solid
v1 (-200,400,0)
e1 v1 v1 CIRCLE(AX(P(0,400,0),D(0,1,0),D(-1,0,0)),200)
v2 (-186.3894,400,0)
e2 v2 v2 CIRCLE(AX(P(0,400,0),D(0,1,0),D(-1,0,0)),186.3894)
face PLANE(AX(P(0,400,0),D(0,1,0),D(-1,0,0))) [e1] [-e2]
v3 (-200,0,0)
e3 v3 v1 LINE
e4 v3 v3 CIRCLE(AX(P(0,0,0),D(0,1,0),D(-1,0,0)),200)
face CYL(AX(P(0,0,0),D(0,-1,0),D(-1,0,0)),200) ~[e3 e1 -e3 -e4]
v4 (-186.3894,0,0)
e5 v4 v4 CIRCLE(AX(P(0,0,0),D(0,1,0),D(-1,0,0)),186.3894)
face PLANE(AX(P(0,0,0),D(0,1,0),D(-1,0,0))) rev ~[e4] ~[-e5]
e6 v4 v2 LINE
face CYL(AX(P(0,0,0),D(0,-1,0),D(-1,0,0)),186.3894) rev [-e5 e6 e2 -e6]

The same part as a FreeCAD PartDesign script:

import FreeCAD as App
import Part
import Sketcher

V = App.Vector

doc = App.newDocument("Part")
body = doc.addObject("PartDesign::Body", "Body")

sketch1 = doc.addObject("Sketcher::SketchObject", "Sketch")
body.addObject(sketch1)
sketch1.AttachmentSupport = (doc.XZ_Plane, [""])
sketch1.MapMode = "FlatFace"
sketch1.addGeometry([
    Part.Circle(V(0, 0, 0), V(0, 0, 1), 200),
    Part.Circle(V(0, 0, 0), V(0, 0, 1), 186),
], False)
sketch1.addConstraint([
    Sketcher.Constraint("Coincident", 0, 3, -1, 1),
    Sketcher.Constraint("Coincident", 1, 3, -1, 1),
    Sketcher.Constraint("Diameter", 0, 400.0),
    Sketcher.Constraint("Diameter", 1, 372.7788),
])
pad1 = doc.addObject("PartDesign::Pad", "Pad")
body.addObject(pad1)
pad1.Profile = sketch1
pad1.Length = 400
pad1.Reversed = True

doc.recompute()
